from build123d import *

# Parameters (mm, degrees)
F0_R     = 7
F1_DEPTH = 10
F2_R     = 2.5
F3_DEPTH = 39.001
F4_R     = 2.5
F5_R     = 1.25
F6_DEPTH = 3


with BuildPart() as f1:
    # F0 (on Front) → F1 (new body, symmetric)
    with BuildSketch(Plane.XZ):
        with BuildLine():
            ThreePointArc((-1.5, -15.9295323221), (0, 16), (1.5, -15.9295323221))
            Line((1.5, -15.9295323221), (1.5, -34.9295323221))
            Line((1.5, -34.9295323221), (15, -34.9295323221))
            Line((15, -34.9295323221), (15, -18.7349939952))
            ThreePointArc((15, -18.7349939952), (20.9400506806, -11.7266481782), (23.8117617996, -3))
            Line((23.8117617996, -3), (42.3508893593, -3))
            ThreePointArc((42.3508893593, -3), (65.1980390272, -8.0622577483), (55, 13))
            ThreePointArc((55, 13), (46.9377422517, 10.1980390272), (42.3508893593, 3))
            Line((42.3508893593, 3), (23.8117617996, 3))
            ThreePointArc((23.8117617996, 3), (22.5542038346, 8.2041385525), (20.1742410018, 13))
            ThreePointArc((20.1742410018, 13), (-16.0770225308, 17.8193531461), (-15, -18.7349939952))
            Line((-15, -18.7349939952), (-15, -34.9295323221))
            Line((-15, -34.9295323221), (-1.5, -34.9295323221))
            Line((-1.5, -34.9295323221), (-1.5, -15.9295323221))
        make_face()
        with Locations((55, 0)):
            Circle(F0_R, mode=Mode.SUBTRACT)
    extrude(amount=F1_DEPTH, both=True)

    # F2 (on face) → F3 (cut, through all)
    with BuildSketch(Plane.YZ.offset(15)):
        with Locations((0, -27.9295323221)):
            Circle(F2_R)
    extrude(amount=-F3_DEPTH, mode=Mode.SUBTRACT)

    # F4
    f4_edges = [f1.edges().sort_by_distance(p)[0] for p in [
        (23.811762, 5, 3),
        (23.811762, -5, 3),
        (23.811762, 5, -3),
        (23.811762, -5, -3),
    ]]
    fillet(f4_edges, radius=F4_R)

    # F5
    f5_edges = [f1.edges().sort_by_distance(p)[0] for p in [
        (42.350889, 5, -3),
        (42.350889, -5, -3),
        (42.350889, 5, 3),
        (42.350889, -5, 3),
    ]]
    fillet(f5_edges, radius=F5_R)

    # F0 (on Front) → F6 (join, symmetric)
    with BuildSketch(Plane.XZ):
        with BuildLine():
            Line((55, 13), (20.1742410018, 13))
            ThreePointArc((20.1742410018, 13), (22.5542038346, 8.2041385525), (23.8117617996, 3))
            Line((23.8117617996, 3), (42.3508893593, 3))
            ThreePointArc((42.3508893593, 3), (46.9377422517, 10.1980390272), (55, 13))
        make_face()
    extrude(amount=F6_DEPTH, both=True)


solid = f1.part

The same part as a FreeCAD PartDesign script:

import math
import FreeCAD as App
import Part
import Sketcher

V = App.Vector


def edges_at(feature, points):
    """Names of the edges that pass closest to the given points."""
    edges = feature.Shape.Edges
    near = lambda p: min(range(len(edges)), key=lambda i: edges[i].distToShape(Part.Vertex(*p))[0])
    return sorted({f"Edge{near(p) + 1}" for p in points})

doc = App.newDocument("Part")
body = doc.addObject("PartDesign::Body", "Body")

# Sketch on XZ plane
sketch1 = doc.addObject("Sketcher::SketchObject", "Sketch")
body.addObject(sketch1)
sketch1.AttachmentSupport = (doc.XZ_Plane, [""])
sketch1.MapMode = "FlatFace"
sketch1.addGeometry([
    Part.ArcOfCircle(Part.Circle(V(0, 0, 0), V(0, 0, 1), 16), math.radians(-85), math.radians(265)),  # 0
    Part.LineSegment(V(1.5, -15.9, 0), V(1.5, -34.9, 0)),  # 1
    Part.LineSegment(V(1.5, -34.9, 0), V(15, -34.9, 0)),  # 2
    Part.LineSegment(V(15, -34.9, 0), V(15, -18.7, 0)),  # 3
    Part.ArcOfCircle(Part.Circle(V(0, 0, 0), V(0, 0, 1), 24), math.radians(-51), math.radians(-7)),  # 4
    Part.LineSegment(V(23.8, -3, 0), V(42.4, -3, 0)),  # 5
    Part.ArcOfCircle(Part.Circle(V(55, 0, 0), V(0, 0, 1), 13), math.radians(-167), math.radians(167)),  # 6
    Part.LineSegment(V(42.4, 3, 0), V(23.8, 3, 0)),  # 7
    Part.ArcOfCircle(Part.Circle(V(0, 0, 0), V(0, 0, 1), 24), math.radians(7), math.radians(33)),  # 8
    Part.ArcOfCircle(Part.Circle(V(0, 0, 0), V(0, 0, 1), 24), math.radians(33), math.radians(231)),  # 9
    Part.LineSegment(V(-15, -18.7, 0), V(-15, -34.9, 0)),  # 10
    Part.LineSegment(V(-15, -34.9, 0), V(-1.5, -34.9, 0)),  # 11
    Part.LineSegment(V(-1.5, -34.9, 0), V(-1.5, -15.9, 0)),  # 12
    Part.Circle(V(55, 0, 0), V(0, 0, 1), 7),  # 13
], False)
sketch1.addConstraint([
    Sketcher.Constraint("Coincident", 0, 1, 1, 1),
    Sketcher.Constraint("Coincident", 1, 2, 2, 1),
    Sketcher.Constraint("Coincident", 2, 2, 3, 1),
    Sketcher.Constraint("Coincident", 3, 2, 4, 1),
    Sketcher.Constraint("Coincident", 4, 2, 5, 1),
    Sketcher.Constraint("Coincident", 5, 2, 6, 1),
    Sketcher.Constraint("Coincident", 6, 2, 7, 1),
    Sketcher.Constraint("Coincident", 7, 2, 8, 1),
    Sketcher.Constraint("Tangent", 8, 2, 9, 1),
    Sketcher.Constraint("Coincident", 9, 2, 10, 1),
    Sketcher.Constraint("Coincident", 10, 2, 11, 1),
    Sketcher.Constraint("Coincident", 11, 2, 12, 1),
    Sketcher.Constraint("Coincident", 12, 2, 0, 2),
    Sketcher.Constraint("Vertical", 1),
    Sketcher.Constraint("Horizontal", 2),
    Sketcher.Constraint("Vertical", 3),
    Sketcher.Constraint("Horizontal", 5),
    Sketcher.Constraint("Horizontal", 7),
    Sketcher.Constraint("Vertical", 10),
    Sketcher.Constraint("Horizontal", 11),
    Sketcher.Constraint("Vertical", 12),
    Sketcher.Constraint("Coincident", 0, 3, -1, 1),
    Sketcher.Constraint("Coincident", 4, 3, -1, 1),
    Sketcher.Constraint("Coincident", 8, 3, -1, 1),
    Sketcher.Constraint("Coincident", 13, 3, 6, 3),
    Sketcher.Constraint("Equal", 4, 8),
    Sketcher.Constraint("Equal", 8, 9),
    Sketcher.Constraint("Symmetric", 2, 2, 10, 2, -2),
    Sketcher.Constraint("Symmetric", 5, 2, 6, 2, -1),
    Sketcher.Constraint("Horizontal", 0, 1, 12, 2),
    Sketcher.Constraint("Diameter", 13, 14.0),
    Sketcher.Constraint("Radius", 0, 16.0),
    Sketcher.Constraint("Radius", 4, 24.0),
    Sketcher.Constraint("Radius", 6, 13.0),
    Sketcher.Constraint("DistanceY", 1, 2, 1, 1, 19.0),
    Sketcher.Constraint("DistanceX", 2, 1, 2, 2, 13.5),
    Sketcher.Constraint("DistanceX", -1, 1, 6, 3, 55.0),
    Sketcher.Constraint("DistanceX", -1, 1, 2, 2, 15.0),
    Sketcher.Constraint("DistanceY", 4, 2, -1, 1, 3.0),
    Sketcher.Constraint("DistanceY", -1, 1, 8, 2, 13.0),
])
pad1 = doc.addObject("PartDesign::Pad", "Pad")
body.addObject(pad1)
pad1.Profile = sketch1
pad1.Length = 20
pad1.Midplane = True

# Sketch on YZ plane
sketch2 = doc.addObject("Sketcher::SketchObject", "Sketch001")
body.addObject(sketch2)
sketch2.AttachmentSupport = (doc.YZ_Plane, [""])
sketch2.MapMode = "FlatFace"
sketch2.AttachmentOffset = App.Placement(V(0, 0, 15), App.Rotation())
sketch2.addGeometry(Part.Circle(V(0, -27.9, 0), V(0, 0, 1), 2.5), False)
sketch2.addConstraint([
    Sketcher.Constraint("PointOnObject", 0, 3, -2),
    Sketcher.Constraint("Diameter", 0, 5.0),
    Sketcher.Constraint("DistanceY", 0, 3, -1, 1, 27.929532),
])
pocket1 = doc.addObject("PartDesign::Pocket", "Pocket")
body.addObject(pocket1)
pocket1.Profile = sketch2
pocket1.Type = "ThroughAll"
doc.recompute()

fillet = doc.addObject("PartDesign::Fillet", "Fillet")
body.addObject(fillet)
fillet.Base = (pocket1, edges_at(pocket1, [
    (23.812, 0, 3),
    (23.812, 0, 3),
    (23.812, 0, -3),
    (23.812, 0, -3),
]))
fillet.Radius = 2.5
doc.recompute()

fillet2 = doc.addObject("PartDesign::Fillet", "Fillet001")
body.addObject(fillet2)
fillet2.Base = (fillet, edges_at(fillet, [
    (42.351, 0, -3),
    (42.351, 0, -3),
    (42.351, 0, 3),
    (42.351, 0, 3),
]))
fillet2.Radius = 1.25

# Sketch on XZ plane
sketch3 = doc.addObject("Sketcher::SketchObject", "Sketch002")
body.addObject(sketch3)
sketch3.AttachmentSupport = (doc.XZ_Plane, [""])
sketch3.MapMode = "FlatFace"
sketch3.addGeometry([
    Part.LineSegment(V(55, 13, 0), V(20, 13, 0)),
    Part.ArcOfCircle(Part.Circle(V(0, 0, 0), V(0, 0, 1), 24), math.radians(7), math.radians(33)),
    Part.LineSegment(V(24, 3, 0), V(42, 3, 0)),
    Part.ArcOfCircle(Part.Circle(V(55, 0, 0), V(0, 0, 1), 13), math.radians(90), math.radians(167)),
], False)
sketch3.addConstraint([
    Sketcher.Constraint("Coincident", 0, 2, 1, 2),
    Sketcher.Constraint("Coincident", 1, 1, 2, 1),
    Sketcher.Constraint("Coincident", 2, 2, 3, 2),
    Sketcher.Constraint("Tangent", 3, 1, 0, 1),
    Sketcher.Constraint("Horizontal", 0),
    Sketcher.Constraint("Horizontal", 2),
    Sketcher.Constraint("Coincident", 1, 3, -1, 1),
    Sketcher.Constraint("PointOnObject", 3, 3, -1),
    Sketcher.Constraint("Radius", 1, 24.0),
    Sketcher.Constraint("Radius", 3, 13.0),
    Sketcher.Constraint("DistanceX", -1, 1, 3, 3, 55.0),
    Sketcher.Constraint("DistanceY", -1, 1, 1, 1, 3.0),
])
pad2 = doc.addObject("PartDesign::Pad", "Pad001")
body.addObject(pad2)
pad2.Profile = sketch3
pad2.Length = 6
pad2.Midplane = True

doc.recompute()
